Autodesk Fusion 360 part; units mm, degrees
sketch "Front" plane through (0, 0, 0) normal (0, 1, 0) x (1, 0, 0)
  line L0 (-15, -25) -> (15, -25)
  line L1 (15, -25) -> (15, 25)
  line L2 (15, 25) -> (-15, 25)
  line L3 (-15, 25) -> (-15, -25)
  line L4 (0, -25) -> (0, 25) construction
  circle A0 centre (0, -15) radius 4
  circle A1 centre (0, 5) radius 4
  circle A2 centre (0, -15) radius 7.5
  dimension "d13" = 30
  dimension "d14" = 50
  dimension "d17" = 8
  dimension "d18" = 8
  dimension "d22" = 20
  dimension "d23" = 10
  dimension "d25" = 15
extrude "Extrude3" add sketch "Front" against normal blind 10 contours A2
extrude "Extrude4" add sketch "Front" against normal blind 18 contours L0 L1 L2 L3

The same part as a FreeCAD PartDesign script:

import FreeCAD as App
import Part
import Sketcher
from FreeCAD import Vector

doc = App.newDocument("Part")
body = doc.addObject("PartDesign::Body", "Body")

sketch1 = body.newObject("Sketcher::SketchObject", "Sketch")
sketch1.AttachmentSupport = (doc.getObject("XZ_Plane"), [""])
sketch1.MapMode = "FlatFace"
sketch1.addGeometry([
    Part.Circle(Vector(0, 15, 0), Vector(0, 0, 1), 7.5),
    Part.Circle(Vector(0, 15, 0), Vector(0, 0, 1), 4),
], False)
sketch1.addConstraint([
    Sketcher.Constraint("Coincident", 1, 3, 0, 3),
    Sketcher.Constraint("PointOnObject", 0, 3, -2),
    Sketcher.Constraint("Diameter", 0, 15.0),
    Sketcher.Constraint("Diameter", 1, 8.0),
    Sketcher.Constraint("DistanceY", -1, 1, 0, 3, 15.0),
])
pad1 = body.newObject("PartDesign::Pad", "Pad")
pad1.Profile = sketch1
pad1.Length = 10

sketch2 = body.newObject("Sketcher::SketchObject", "Sketch001")
sketch2.AttachmentSupport = (doc.getObject("XZ_Plane"), [""])
sketch2.MapMode = "FlatFace"
sketch2.addGeometry([
    Part.LineSegment(Vector(-15, -25, 0), Vector(-15, 25, 0)),
    Part.LineSegment(Vector(-15, 25, 0), Vector(15, 25, 0)),
    Part.LineSegment(Vector(15, 25, 0), Vector(15, -25, 0)),
    Part.LineSegment(Vector(15, -25, 0), Vector(-15, -25, 0)),
    Part.Circle(Vector(0, 15, 0), Vector(0, 0, 1), 7.5),
    Part.Circle(Vector(0, -5, 0), Vector(0, 0, 1), 4),
], False)
sketch2.addConstraint([
    Sketcher.Constraint("Coincident", 0, 2, 1, 1),
    Sketcher.Constraint("Coincident", 1, 2, 2, 1),
    Sketcher.Constraint("Coincident", 2, 2, 3, 1),
    Sketcher.Constraint("Coincident", 3, 2, 0, 1),
    Sketcher.Constraint("Vertical", 0),
    Sketcher.Constraint("Horizontal", 1),
    Sketcher.Constraint("Vertical", 2),
    Sketcher.Constraint("Horizontal", 3),
    Sketcher.Constraint("Symmetric", 0, 2, 2, 2, -1, 1),
    Sketcher.Constraint("PointOnObject", 4, 3, -2),
    Sketcher.Constraint("PointOnObject", 5, 3, -2),
    Sketcher.Constraint("Diameter", 4, 15.0),
    Sketcher.Constraint("Diameter", 5, 8.0),
    Sketcher.Constraint("DistanceX", 1, 1, 1, 2, 30.0),
    Sketcher.Constraint("DistanceY", 0, 1, 0, 2, 50.0),
    Sketcher.Constraint("DistanceY", -1, 1, 4, 3, 15.0),
    Sketcher.Constraint("DistanceY", 5, 3, 4, 3, 20.0),
])
pad2 = body.newObject("PartDesign::Pad", "Pad001")
pad2.Profile = sketch2
pad2.Length = 18

doc.recompute()
